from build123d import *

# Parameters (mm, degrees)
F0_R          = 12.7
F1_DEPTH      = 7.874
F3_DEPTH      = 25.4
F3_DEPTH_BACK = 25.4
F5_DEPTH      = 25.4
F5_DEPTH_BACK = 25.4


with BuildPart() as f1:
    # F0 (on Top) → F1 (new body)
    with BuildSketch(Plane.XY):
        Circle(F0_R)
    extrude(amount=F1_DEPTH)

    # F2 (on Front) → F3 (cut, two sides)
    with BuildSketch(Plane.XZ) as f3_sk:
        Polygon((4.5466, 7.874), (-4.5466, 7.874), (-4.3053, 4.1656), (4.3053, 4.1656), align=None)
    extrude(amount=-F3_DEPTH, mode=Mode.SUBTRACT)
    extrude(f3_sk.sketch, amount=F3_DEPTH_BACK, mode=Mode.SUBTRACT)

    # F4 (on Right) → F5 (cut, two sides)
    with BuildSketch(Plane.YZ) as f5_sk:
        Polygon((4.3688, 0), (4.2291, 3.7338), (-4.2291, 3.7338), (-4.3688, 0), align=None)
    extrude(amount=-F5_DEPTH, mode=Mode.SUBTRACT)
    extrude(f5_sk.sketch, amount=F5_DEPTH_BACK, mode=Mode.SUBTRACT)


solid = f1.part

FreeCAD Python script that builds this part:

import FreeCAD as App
import Part
import Sketcher

V = App.Vector
Q = App.Units.Quantity


def add_polygon(sketch, points):
    """Adds a closed chain of lines whose ends are joined by coincident constraints."""
    first, n = sketch.GeometryCount, len(points)
    for a, b in zip(points, points[1:] + points[:1]):
        sketch.addGeometry(Part.LineSegment(App.Vector(*a, 0), App.Vector(*b, 0)), False)
    for i in range(n):
        sketch.addConstraint(Sketcher.Constraint("Coincident", first + i, 2, first + (i + 1) % n, 1))

doc = App.newDocument("Part")
body = doc.addObject("PartDesign::Body", "Body")

sketch1 = doc.addObject("Sketcher::SketchObject", "Sketch")
body.addObject(sketch1)
sketch1.AttachmentSupport = (doc.XY_Plane, [""])
sketch1.MapMode = "FlatFace"
sketch1.addGeometry(Part.Circle(V(0, 0, 0), V(0, 0, 1), 13), False)
sketch1.addConstraint(Sketcher.Constraint("Coincident", 0, 3, -1, 1))
sketch1.addConstraint(Sketcher.Constraint("Diameter", 0, Q("1 in")))
pad1 = doc.addObject("PartDesign::Pad", "Pad")
body.addObject(pad1)
pad1.Profile = sketch1
pad1.Length = Q("0.31 in")

sketch2 = doc.addObject("Sketcher::SketchObject", "Sketch001")
body.addObject(sketch2)
sketch2.AttachmentSupport = (doc.XZ_Plane, [""])
sketch2.MapMode = "FlatFace"
add_polygon(sketch2, [(4.5, 7.9), (-4.5, 7.9), (-4.3, 4.2), (4.3, 4.2)])
sketch2.addConstraint(Sketcher.Constraint("Horizontal", 0))
sketch2.addConstraint(Sketcher.Constraint("Horizontal", 2))
sketch2.addConstraint(Sketcher.Constraint("Equal", 1, 3))
sketch2.addConstraint(Sketcher.Constraint("DistanceX", 0, 2, 0, 1, Q("0.358 in")))
sketch2.addConstraint(Sketcher.Constraint("DistanceX", 2, 1, 2, 2, Q("0.339 in")))
sketch2.addConstraint(Sketcher.Constraint("DistanceY", -1, 1, 0, 2, Q("0.31 in")))
sketch2.addConstraint(Sketcher.Constraint("DistanceX", 0, 2, -1, 1, Q("0.179 in")))
sketch2.addConstraint(Sketcher.Constraint("DistanceY", -1, 1, 1, 2, Q("0.164 in")))
pocket1 = doc.addObject("PartDesign::Pocket", "Pocket")
body.addObject(pocket1)
pocket1.Profile = sketch2
pocket1.Type = "ThroughAll"
pocket1.Midplane = True

sketch3 = doc.addObject("Sketcher::SketchObject", "Sketch002")
body.addObject(sketch3)
sketch3.AttachmentSupport = (doc.YZ_Plane, [""])
sketch3.MapMode = "FlatFace"
add_polygon(sketch3, [(4.4, 0), (4.2, 3.7), (-4.2, 3.7), (-4.4, 0)])
sketch3.addConstraint(Sketcher.Constraint("Horizontal", 1))
sketch3.addConstraint(Sketcher.Constraint("Horizontal", 3))
sketch3.addConstraint(Sketcher.Constraint("Symmetric", 2, 2, 3, 2, -1, 1))
sketch3.addConstraint(Sketcher.Constraint("Equal", 0, 2))
sketch3.addConstraint(Sketcher.Constraint("DistanceX", 1, 2, 1, 1, Q("0.333 in")))
sketch3.addConstraint(Sketcher.Constraint("DistanceX", 3, 1, 3, 2, Q("0.344 in")))
sketch3.addConstraint(Sketcher.Constraint("DistanceY", -1, 1, 0, 2, Q("0.147 in")))
pocket2 = doc.addObject("PartDesign::Pocket", "Pocket001")
body.addObject(pocket2)
pocket2.Profile = sketch3
pocket2.Type = "ThroughAll"
pocket2.Midplane = True

doc.recompute()
